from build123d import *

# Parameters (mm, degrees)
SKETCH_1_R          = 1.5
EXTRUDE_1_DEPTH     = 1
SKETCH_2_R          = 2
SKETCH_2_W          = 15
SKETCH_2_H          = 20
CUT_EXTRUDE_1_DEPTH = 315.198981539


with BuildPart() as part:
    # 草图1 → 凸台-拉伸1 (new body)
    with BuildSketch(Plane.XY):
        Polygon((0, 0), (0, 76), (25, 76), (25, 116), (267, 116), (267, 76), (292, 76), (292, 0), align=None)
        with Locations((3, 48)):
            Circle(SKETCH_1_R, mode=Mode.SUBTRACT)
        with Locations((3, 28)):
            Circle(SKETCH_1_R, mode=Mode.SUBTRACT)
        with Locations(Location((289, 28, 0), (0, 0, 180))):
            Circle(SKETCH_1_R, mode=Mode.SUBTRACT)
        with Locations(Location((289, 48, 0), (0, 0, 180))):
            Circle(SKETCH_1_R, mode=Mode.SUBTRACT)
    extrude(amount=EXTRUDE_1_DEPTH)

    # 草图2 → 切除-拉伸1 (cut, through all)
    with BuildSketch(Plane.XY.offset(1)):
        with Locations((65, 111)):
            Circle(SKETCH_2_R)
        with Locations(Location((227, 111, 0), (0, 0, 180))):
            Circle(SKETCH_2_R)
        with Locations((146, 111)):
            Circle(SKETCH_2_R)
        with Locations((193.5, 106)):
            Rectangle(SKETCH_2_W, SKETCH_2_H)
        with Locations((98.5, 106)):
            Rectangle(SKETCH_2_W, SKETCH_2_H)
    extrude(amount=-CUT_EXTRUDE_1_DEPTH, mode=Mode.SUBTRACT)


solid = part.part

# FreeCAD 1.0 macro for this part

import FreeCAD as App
import Part
import Sketcher

V = App.Vector

doc = App.newDocument("Part")
params = doc.addObject("Spreadsheet::Sheet", "Params")
for row, (alias, value) in enumerate([
    ("sketch1_diameter", "3 mm"),
    ("sketch1_width", "292 mm"),
    ("sketch1_width2", "25 mm"),
    ("sketch1_height", "76 mm"),
    ("sketch1_height2", "40 mm"),
    ("pad1_length", "1 mm"),
    ("sketch2_diameter", "4 mm"),
    ("sketch2_width", "15 mm"),
    ("sketch2_height", "20 mm"),
], start=1):
    params.set(f"A{row}", alias)
    params.set(f"B{row}", "=" + value)
    params.setAlias(f"B{row}", alias)

body = doc.addObject("PartDesign::Body", "Body")

sketch1 = body.newObject("Sketcher::SketchObject", "Sketch")
sketch1.AttachmentSupport = (doc.getObject("XY_Plane"), [""])
sketch1.MapMode = "FlatFace"
sketch1.addGeometry([
    Part.LineSegment(V(0, 76, 0), V(0, 0, 0)),
    Part.LineSegment(V(0, 0, 0), V(292, 0, 0)),
    Part.LineSegment(V(292, 0, 0), V(292, 76, 0)),
    Part.LineSegment(V(292, 76, 0), V(267, 76, 0)),
    Part.LineSegment(V(267, 76, 0), V(267, 116, 0)),
    Part.LineSegment(V(267, 116, 0), V(25, 116, 0)),
    Part.LineSegment(V(25, 116, 0), V(25, 76, 0)),
    Part.LineSegment(V(25, 76, 0), V(0, 76, 0)),
    Part.Circle(V(289, 28, 0), V(0, 0, 1), 1.5),
    Part.Circle(V(3, 28, 0), V(0, 0, 1), 1.5),
    Part.Circle(V(289, 48, 0), V(0, 0, 1), 1.5),
    Part.Circle(V(3, 48, 0), V(0, 0, 1), 1.5),
], False)
sketch1.addConstraint([
    Sketcher.Constraint("Coincident", 0, 2, 1, 1),
    Sketcher.Constraint("Coincident", 1, 2, 2, 1),
    Sketcher.Constraint("Coincident", 2, 2, 3, 1),
    Sketcher.Constraint("Coincident", 3, 2, 4, 1),
    Sketcher.Constraint("Coincident", 4, 2, 5, 1),
    Sketcher.Constraint("Coincident", 5, 2, 6, 1),
    Sketcher.Constraint("Coincident", 6, 2, 7, 1),
    Sketcher.Constraint("Coincident", 7, 2, 0, 1),
    Sketcher.Constraint("Vertical", 0),
    Sketcher.Constraint("Horizontal", 1),
    Sketcher.Constraint("Vertical", 2),
    Sketcher.Constraint("Horizontal", 3),
    Sketcher.Constraint("Vertical", 4),
    Sketcher.Constraint("Horizontal", 5),
    Sketcher.Constraint("Vertical", 6),
    Sketcher.Constraint("Horizontal", 7),
    Sketcher.Constraint("Coincident", 0, 2, -1, 1),
    Sketcher.Constraint("Equal", 8, 9),
    Sketcher.Constraint("Equal", 9, 10),
    Sketcher.Constraint("Equal", 10, 11),
    Sketcher.Constraint("Horizontal", 8, 3, 9, 3),
    Sketcher.Constraint("Horizontal", 10, 3, 11, 3),
    Sketcher.Constraint("Horizontal", 3, 2, 6, 2),
    Sketcher.Constraint("Vertical", 8, 3, 10, 3),
    Sketcher.Constraint("Vertical", 9, 3, 11, 3),
    Sketcher.Constraint("Equal", 3, 7),
    Sketcher.Constraint("Diameter", 8, 3.0),
    Sketcher.Constraint("DistanceX", 1, 1, 1, 2, 292.0),
    Sketcher.Constraint("DistanceX", 3, 2, 3, 1, 25.0),
    Sketcher.Constraint("DistanceY", 0, 2, 0, 1, 76.0),
    Sketcher.Constraint("DistanceY", 4, 1, 4, 2, 40.0),
    Sketcher.Constraint("DistanceX", -1, 1, 8, 3, 289.0),
    Sketcher.Constraint("DistanceY", -1, 1, 8, 3, 28.0),
    Sketcher.Constraint("DistanceX", -1, 1, 9, 3, 3.0),
    Sketcher.Constraint("DistanceY", -1, 1, 10, 3, 48.0),
])
sketch1.setExpression("Constraints[26]", "Params.sketch1_diameter")
sketch1.setExpression("Constraints[27]", "Params.sketch1_width")
sketch1.setExpression("Constraints[28]", "Params.sketch1_width2")
sketch1.setExpression("Constraints[29]", "Params.sketch1_height")
sketch1.setExpression("Constraints[30]", "Params.sketch1_height2")
pad1 = body.newObject("PartDesign::Pad", "Pad")
pad1.Profile = sketch1
pad1.setExpression("Length", "Params.pad1_length")

sketch2 = body.newObject("Sketcher::SketchObject", "Sketch001")
sketch2.AttachmentSupport = (doc.getObject("XY_Plane"), [""])
sketch2.MapMode = "FlatFace"
sketch2.AttachmentOffset = App.Placement(V(0, 0, 1), App.Rotation())
sketch2.addGeometry([
    Part.Circle(V(65, 111, 0), V(0, 0, 1), 2),
    Part.Circle(V(227, 111, 0), V(0, 0, 1), 2),
    Part.Circle(V(146, 111, 0), V(0, 0, 1), 2),
    Part.LineSegment(V(186, 116, 0), V(186, 96, 0)),
    Part.LineSegment(V(186, 96, 0), V(201, 96, 0)),
    Part.LineSegment(V(201, 96, 0), V(201, 116, 0)),
    Part.LineSegment(V(201, 116, 0), V(186, 116, 0)),
    Part.LineSegment(V(91, 116, 0), V(91, 96, 0)),
    Part.LineSegment(V(91, 96, 0), V(106, 96, 0)),
    Part.LineSegment(V(106, 96, 0), V(106, 116, 0)),
    Part.LineSegment(V(106, 116, 0), V(91, 116, 0)),
], False)
sketch2.addConstraint([
    Sketcher.Constraint("Coincident", 3, 2, 4, 1),
    Sketcher.Constraint("Coincident", 4, 2, 5, 1),
    Sketcher.Constraint("Coincident", 5, 2, 6, 1),
    Sketcher.Constraint("Coincident", 6, 2, 3, 1),
    Sketcher.Constraint("Coincident", 7, 2, 8, 1),
    Sketcher.Constraint("Coincident", 8, 2, 9, 1),
    Sketcher.Constraint("Coincident", 9, 2, 10, 1),
    Sketcher.Constraint("Coincident", 10, 2, 7, 1),
    Sketcher.Constraint("Vertical", 3),
    Sketcher.Constraint("Horizontal", 4),
    Sketcher.Constraint("Vertical", 5),
    Sketcher.Constraint("Horizontal", 6),
    Sketcher.Constraint("Vertical", 7),
    Sketcher.Constraint("Horizontal", 8),
    Sketcher.Constraint("Vertical", 9),
    Sketcher.Constraint("Horizontal", 10),
    Sketcher.Constraint("Equal", 0, 1),
    Sketcher.Constraint("Equal", 1, 2),
    Sketcher.Constraint("Horizontal", 0, 3, 1, 3),
    Sketcher.Constraint("Horizontal", 1, 3, 2, 3),
    Sketcher.Constraint("Horizontal", 4, 2, 7, 2),
    Sketcher.Constraint("Horizontal", 6, 2, 9, 2),
    Sketcher.Constraint("Equal", 6, 8),
    Sketcher.Constraint("Diameter", 0, 4.0),
    Sketcher.Constraint("DistanceX", 4, 1, 4, 2, 15.0),
    Sketcher.Constraint("DistanceY", 3, 2, 3, 1, 20.0),
    Sketcher.Constraint("DistanceX", -1, 1, 0, 3, 65.0),
    Sketcher.Constraint("DistanceY", -1, 1, 0, 3, 111.0),
    Sketcher.Constraint("DistanceX", -1, 1, 1, 3, 227.0),
    Sketcher.Constraint("DistanceX", -1, 1, 2, 3, 146.0),
    Sketcher.Constraint("DistanceX", -1, 1, 3, 2, 186.0),
    Sketcher.Constraint("DistanceY", -1, 1, 3, 2, 96.0),
    Sketcher.Constraint("DistanceX", -1, 1, 7, 2, 91.0),
])
sketch2.setExpression("Constraints[23]", "Params.sketch2_diameter")
sketch2.setExpression("Constraints[24]", "Params.sketch2_width")
sketch2.setExpression("Constraints[25]", "Params.sketch2_height")
pocket1 = body.newObject("PartDesign::Pocket", "Pocket")
pocket1.Profile = sketch2
pocket1.Type = "ThroughAll"

doc.recompute()
